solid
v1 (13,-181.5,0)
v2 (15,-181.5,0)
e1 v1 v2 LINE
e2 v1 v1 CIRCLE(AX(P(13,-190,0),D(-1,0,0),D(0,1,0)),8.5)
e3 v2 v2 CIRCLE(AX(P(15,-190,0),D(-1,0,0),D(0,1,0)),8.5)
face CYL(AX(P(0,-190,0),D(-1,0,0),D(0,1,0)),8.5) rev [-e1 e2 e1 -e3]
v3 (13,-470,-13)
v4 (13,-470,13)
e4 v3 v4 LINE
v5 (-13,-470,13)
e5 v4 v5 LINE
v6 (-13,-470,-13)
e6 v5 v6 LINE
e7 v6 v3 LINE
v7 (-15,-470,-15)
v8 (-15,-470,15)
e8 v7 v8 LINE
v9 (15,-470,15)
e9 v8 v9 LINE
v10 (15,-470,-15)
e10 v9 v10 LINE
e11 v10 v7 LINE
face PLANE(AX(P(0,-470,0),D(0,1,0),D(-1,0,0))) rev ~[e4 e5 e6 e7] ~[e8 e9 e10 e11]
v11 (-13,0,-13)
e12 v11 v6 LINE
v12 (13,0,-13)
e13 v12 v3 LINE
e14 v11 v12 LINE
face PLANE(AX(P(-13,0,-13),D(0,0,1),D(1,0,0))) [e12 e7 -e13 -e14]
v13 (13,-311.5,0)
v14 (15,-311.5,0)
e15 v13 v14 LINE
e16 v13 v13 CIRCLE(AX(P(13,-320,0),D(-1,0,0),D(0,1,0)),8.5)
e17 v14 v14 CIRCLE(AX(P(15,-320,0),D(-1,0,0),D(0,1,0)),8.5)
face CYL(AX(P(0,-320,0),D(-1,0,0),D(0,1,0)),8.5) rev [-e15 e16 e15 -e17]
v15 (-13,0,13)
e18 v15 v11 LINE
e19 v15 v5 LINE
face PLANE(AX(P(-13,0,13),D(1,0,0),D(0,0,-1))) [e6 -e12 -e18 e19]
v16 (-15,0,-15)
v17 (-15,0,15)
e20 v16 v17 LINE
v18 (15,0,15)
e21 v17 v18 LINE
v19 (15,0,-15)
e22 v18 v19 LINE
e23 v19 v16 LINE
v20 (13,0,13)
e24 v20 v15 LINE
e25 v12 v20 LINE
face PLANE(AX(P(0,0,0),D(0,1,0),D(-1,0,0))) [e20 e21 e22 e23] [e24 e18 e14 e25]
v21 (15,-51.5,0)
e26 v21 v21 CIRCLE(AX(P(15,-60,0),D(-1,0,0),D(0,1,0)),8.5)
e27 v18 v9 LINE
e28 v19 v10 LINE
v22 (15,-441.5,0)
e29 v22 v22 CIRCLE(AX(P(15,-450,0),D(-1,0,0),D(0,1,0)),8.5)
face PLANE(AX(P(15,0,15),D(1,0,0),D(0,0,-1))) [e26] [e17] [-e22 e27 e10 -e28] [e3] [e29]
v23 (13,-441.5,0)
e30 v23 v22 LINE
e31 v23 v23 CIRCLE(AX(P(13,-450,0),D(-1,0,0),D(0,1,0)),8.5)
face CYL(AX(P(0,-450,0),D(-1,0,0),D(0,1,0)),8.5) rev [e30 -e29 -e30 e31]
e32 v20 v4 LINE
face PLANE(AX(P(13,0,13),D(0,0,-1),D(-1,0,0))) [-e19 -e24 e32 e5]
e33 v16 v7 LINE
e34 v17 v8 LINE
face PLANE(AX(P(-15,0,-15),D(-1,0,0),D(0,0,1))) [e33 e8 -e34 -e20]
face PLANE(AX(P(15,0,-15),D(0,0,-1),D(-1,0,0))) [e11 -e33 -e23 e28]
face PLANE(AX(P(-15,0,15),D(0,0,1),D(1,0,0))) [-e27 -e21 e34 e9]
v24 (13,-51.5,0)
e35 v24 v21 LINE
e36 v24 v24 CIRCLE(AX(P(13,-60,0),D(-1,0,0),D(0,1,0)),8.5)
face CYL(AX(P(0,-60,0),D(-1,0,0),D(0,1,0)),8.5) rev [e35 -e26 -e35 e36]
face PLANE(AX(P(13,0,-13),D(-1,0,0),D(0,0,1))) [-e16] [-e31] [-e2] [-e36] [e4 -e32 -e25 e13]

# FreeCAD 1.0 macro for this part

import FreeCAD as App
import Part
import Sketcher

V = App.Vector
Q = App.Units.Quantity

doc = App.newDocument("Part")
body = doc.addObject("PartDesign::Body", "Body")

# Sketch on XZ plane
sketch1 = body.newObject("Sketcher::SketchObject", "Sketch")
sketch1.AttachmentSupport = (doc.getObject("XZ_Plane"), [""])
sketch1.MapMode = "FlatFace"
sketch1.addGeometry(Part.LineSegment(V(-15, -15, 0), V(-15, 15, 0)), False)
sketch1.addGeometry(Part.LineSegment(V(-15, 15, 0), V(15, 15, 0)), False)
sketch1.addGeometry(Part.LineSegment(V(15, 15, 0), V(15, -15, 0)), False)
sketch1.addGeometry(Part.LineSegment(V(15, -15, 0), V(-15, -15, 0)), False)
sketch1.addGeometry(Part.LineSegment(V(13, -13, 0), V(13, 13, 0)), False)
sketch1.addGeometry(Part.LineSegment(V(13, 13, 0), V(-13, 13, 0)), False)
sketch1.addGeometry(Part.LineSegment(V(-13, 13, 0), V(-13, -13, 0)), False)
sketch1.addGeometry(Part.LineSegment(V(-13, -13, 0), V(13, -13, 0)), False)
sketch1.addConstraint(Sketcher.Constraint("Coincident", 0, 2, 1, 1))
sketch1.addConstraint(Sketcher.Constraint("Coincident", 1, 2, 2, 1))
sketch1.addConstraint(Sketcher.Constraint("Coincident", 2, 2, 3, 1))
sketch1.addConstraint(Sketcher.Constraint("Coincident", 3, 2, 0, 1))
sketch1.addConstraint(Sketcher.Constraint("Coincident", 4, 2, 5, 1))
sketch1.addConstraint(Sketcher.Constraint("Coincident", 5, 2, 6, 1))
sketch1.addConstraint(Sketcher.Constraint("Coincident", 6, 2, 7, 1))
sketch1.addConstraint(Sketcher.Constraint("Coincident", 7, 2, 4, 1))
sketch1.addConstraint(Sketcher.Constraint("Vertical", 0))
sketch1.addConstraint(Sketcher.Constraint("Horizontal", 1))
sketch1.addConstraint(Sketcher.Constraint("Vertical", 2))
sketch1.addConstraint(Sketcher.Constraint("Horizontal", 3))
sketch1.addConstraint(Sketcher.Constraint("Vertical", 4))
sketch1.addConstraint(Sketcher.Constraint("Horizontal", 5))
sketch1.addConstraint(Sketcher.Constraint("Vertical", 6))
sketch1.addConstraint(Sketcher.Constraint("Horizontal", 7))
sketch1.addConstraint(Sketcher.Constraint("Symmetric", 0, 2, 2, 2, -1, 1))
sketch1.addConstraint(Sketcher.Constraint("Symmetric", 4, 2, 6, 2, -1, 1))
sketch1.addConstraint(Sketcher.Constraint("Equal", 3, 0))
sketch1.addConstraint(Sketcher.Constraint("Equal", 7, 4))
sketch1.addConstraint(Sketcher.Constraint("DistanceX", 1, 1, 1, 2, Q("30 mm")))
sketch1.addConstraint(Sketcher.Constraint("DistanceX", 4, 2, 1, 2, Q("2 mm")))
pad1 = body.newObject("PartDesign::Pad", "Pad")
pad1.Profile = sketch1
pad1.Length = 470

# Sketch on YZ plane
sketch2 = body.newObject("Sketcher::SketchObject", "Sketch001")
sketch2.AttachmentSupport = (doc.getObject("YZ_Plane"), [""])
sketch2.MapMode = "FlatFace"
sketch2.addGeometry(Part.Circle(V(-60, 0, 0), V(0, 0, 1), 8), False)
sketch2.addGeometry(Part.Circle(V(-190, 0, 0), V(0, 0, 1), 8), False)
sketch2.addGeometry(Part.Circle(V(-320, 0, 0), V(0, 0, 1), 8), False)
sketch2.addGeometry(Part.Circle(V(-450, 0, 0), V(0, 0, 1), 8), False)
sketch2.addConstraint(Sketcher.Constraint("Equal", 0, 1))
sketch2.addConstraint(Sketcher.Constraint("Equal", 1, 2))
sketch2.addConstraint(Sketcher.Constraint("Equal", 2, 3))
sketch2.addConstraint(Sketcher.Constraint("PointOnObject", 0, 3, -1))
sketch2.addConstraint(Sketcher.Constraint("PointOnObject", 1, 3, -1))
sketch2.addConstraint(Sketcher.Constraint("PointOnObject", 2, 3, -1))
sketch2.addConstraint(Sketcher.Constraint("PointOnObject", 3, 3, -1))
sketch2.addConstraint(Sketcher.Constraint("Diameter", 0, Q("17 mm")))
sketch2.addConstraint(Sketcher.Constraint("DistanceX", 0, 3, -1, 1, Q("60 mm")))
sketch2.addConstraint(Sketcher.Constraint("DistanceX", 1, 3, -1, 1, Q("190 mm")))
sketch2.addConstraint(Sketcher.Constraint("DistanceX", 2, 3, -1, 1, Q("320 mm")))
sketch2.addConstraint(Sketcher.Constraint("DistanceX", 3, 3, -1, 1, Q("450 mm")))
pocket1 = body.newObject("PartDesign::Pocket", "Pocket")
pocket1.Profile = sketch2
pocket1.Type = "ThroughAll"
pocket1.Reversed = True

doc.recompute()
